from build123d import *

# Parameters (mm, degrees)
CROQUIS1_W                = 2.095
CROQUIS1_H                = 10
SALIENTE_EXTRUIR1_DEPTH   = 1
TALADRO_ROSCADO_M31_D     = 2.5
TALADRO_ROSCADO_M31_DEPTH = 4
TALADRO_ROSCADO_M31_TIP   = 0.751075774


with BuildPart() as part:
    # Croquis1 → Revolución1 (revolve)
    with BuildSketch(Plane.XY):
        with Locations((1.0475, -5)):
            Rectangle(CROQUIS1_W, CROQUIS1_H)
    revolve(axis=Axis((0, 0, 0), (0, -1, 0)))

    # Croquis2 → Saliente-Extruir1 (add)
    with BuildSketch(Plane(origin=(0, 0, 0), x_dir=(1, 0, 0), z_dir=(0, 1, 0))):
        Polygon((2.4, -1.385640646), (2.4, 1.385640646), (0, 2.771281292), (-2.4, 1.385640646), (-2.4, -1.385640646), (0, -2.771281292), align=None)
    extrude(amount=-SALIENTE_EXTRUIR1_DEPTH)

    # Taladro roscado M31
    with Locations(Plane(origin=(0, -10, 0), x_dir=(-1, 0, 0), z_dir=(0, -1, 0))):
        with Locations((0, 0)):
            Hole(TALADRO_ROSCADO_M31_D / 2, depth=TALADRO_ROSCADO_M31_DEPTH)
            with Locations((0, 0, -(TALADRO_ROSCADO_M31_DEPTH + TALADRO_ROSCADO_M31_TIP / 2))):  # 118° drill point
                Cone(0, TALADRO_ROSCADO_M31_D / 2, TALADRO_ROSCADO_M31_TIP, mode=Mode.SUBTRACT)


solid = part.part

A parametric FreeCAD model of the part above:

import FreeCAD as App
import Part
import Sketcher
from FreeCAD import Vector
Q = App.Units.Quantity

doc = App.newDocument("Part")
body = doc.addObject("PartDesign::Body", "Body")

sketch1 = doc.addObject("Sketcher::SketchObject", "Sketch")
body.addObject(sketch1)
sketch1.AttachmentSupport = (doc.XY_Plane, [""])
sketch1.MapMode = "FlatFace"
sketch1.addGeometry(Part.LineSegment(Vector(0, 0, 0), Vector(0, -10, 0)), False)
sketch1.addGeometry(Part.LineSegment(Vector(0, -10, 0), Vector(2.1, -10, 0)), False)
sketch1.addGeometry(Part.LineSegment(Vector(2.1, -10, 0), Vector(2.1, 0, 0)), False)
sketch1.addGeometry(Part.LineSegment(Vector(2.1, 0, 0), Vector(0, 0, 0)), False)
sketch1.addConstraint(Sketcher.Constraint("Coincident", 0, 2, 1, 1))
sketch1.addConstraint(Sketcher.Constraint("Coincident", 1, 2, 2, 1))
sketch1.addConstraint(Sketcher.Constraint("Coincident", 2, 2, 3, 1))
sketch1.addConstraint(Sketcher.Constraint("Coincident", 3, 2, 0, 1))
sketch1.addConstraint(Sketcher.Constraint("Vertical", 0))
sketch1.addConstraint(Sketcher.Constraint("Horizontal", 1))
sketch1.addConstraint(Sketcher.Constraint("Vertical", 2))
sketch1.addConstraint(Sketcher.Constraint("Horizontal", 3))
sketch1.addConstraint(Sketcher.Constraint("Coincident", 3, 2, -1, 1))
sketch1.addConstraint(Sketcher.Constraint("DistanceY", 0, 2, 0, 1, 10.0))
sketch1.addConstraint(Sketcher.Constraint("DistanceX", 1, 1, 1, 2, 2.095))
revolution = doc.addObject("PartDesign::Revolution", "Revolution")
body.addObject(revolution)
revolution.Profile = sketch1
revolution.ReferenceAxis = (sketch1, ["V_Axis"])
revolution.Angle = 360

sketch2 = doc.addObject("Sketcher::SketchObject", "Sketch001")
body.addObject(sketch2)
sketch2.AttachmentSupport = (doc.XZ_Plane, [""])
sketch2.MapMode = "FlatFace"
sketch2.addGeometry(Part.LineSegment(Vector(2.4, 1.4, 0), Vector(2.4, -1.4, 0)), False)
sketch2.addGeometry(Part.LineSegment(Vector(2.4, -1.4, 0), Vector(0, -2.8, 0)), False)
sketch2.addGeometry(Part.LineSegment(Vector(0, -2.8, 0), Vector(-2.4, -1.4, 0)), False)
sketch2.addGeometry(Part.LineSegment(Vector(-2.4, -1.4, 0), Vector(-2.4, 1.4, 0)), False)
sketch2.addGeometry(Part.LineSegment(Vector(-2.4, 1.4, 0), Vector(0, 2.8, 0)), False)
sketch2.addGeometry(Part.LineSegment(Vector(0, 2.8, 0), Vector(2.4, 1.4, 0)), False)
sketch2.addConstraint(Sketcher.Constraint("Coincident", 0, 2, 1, 1))
sketch2.addConstraint(Sketcher.Constraint("Coincident", 1, 2, 2, 1))
sketch2.addConstraint(Sketcher.Constraint("Coincident", 2, 2, 3, 1))
sketch2.addConstraint(Sketcher.Constraint("Coincident", 3, 2, 4, 1))
sketch2.addConstraint(Sketcher.Constraint("Coincident", 4, 2, 5, 1))
sketch2.addConstraint(Sketcher.Constraint("Coincident", 5, 2, 0, 1))
sketch2.addConstraint(Sketcher.Constraint("Vertical", 0))
sketch2.addConstraint(Sketcher.Constraint("Vertical", 3))
sketch2.addConstraint(Sketcher.Constraint("Symmetric", 0, 2, 3, 2, -1, 1))
sketch2.addConstraint(Sketcher.Constraint("Symmetric", 1, 2, 4, 2, -1, 1))
sketch2.addConstraint(Sketcher.Constraint("PointOnObject", 1, 2, -2))
sketch2.addConstraint(Sketcher.Constraint("Parallel", 2, 5))
sketch2.addConstraint(Sketcher.Constraint("Horizontal", 0, 2, 2, 2))
sketch2.addConstraint(Sketcher.Constraint("Angle", 1, Q("-150 deg")))
sketch2.addConstraint(Sketcher.Constraint("DistanceX", -1, 1, 0, 2, 2.4))
sketch2.addConstraint(Sketcher.Constraint("DistanceY", 0, 2, 0, 1, 2.771281))
pad1 = doc.addObject("PartDesign::Pad", "Pad")
body.addObject(pad1)
pad1.Profile = sketch2
pad1.Length = 1

sketch3 = doc.addObject("Sketcher::SketchObject", "Sketch002")
body.addObject(sketch3)
sketch3.AttachmentSupport = (doc.XZ_Plane, [""])
sketch3.MapMode = "FlatFace"
sketch3.AttachmentOffset = App.Placement(Vector(0, 0, 10), App.Rotation())
sketch3.addGeometry(Part.Circle(Vector(0, 0, 0), Vector(0, 0, 1), 1.2), False)
sketch3.addConstraint(Sketcher.Constraint("Coincident", 0, 3, -1, 1))
sketch3.addConstraint(Sketcher.Constraint("Diameter", 0, 2.5))
doc.recompute()
hole = doc.addObject("PartDesign::Hole", "Hole")
body.addObject(hole)
hole.Profile = sketch3
hole.ThreadType = "None"
hole.Diameter = 2.5
hole.DepthType = "Dimension"
hole.Depth = 4
hole.DrillPoint = "Angled"
hole.DrillPointAngle = 118

doc.recompute()
